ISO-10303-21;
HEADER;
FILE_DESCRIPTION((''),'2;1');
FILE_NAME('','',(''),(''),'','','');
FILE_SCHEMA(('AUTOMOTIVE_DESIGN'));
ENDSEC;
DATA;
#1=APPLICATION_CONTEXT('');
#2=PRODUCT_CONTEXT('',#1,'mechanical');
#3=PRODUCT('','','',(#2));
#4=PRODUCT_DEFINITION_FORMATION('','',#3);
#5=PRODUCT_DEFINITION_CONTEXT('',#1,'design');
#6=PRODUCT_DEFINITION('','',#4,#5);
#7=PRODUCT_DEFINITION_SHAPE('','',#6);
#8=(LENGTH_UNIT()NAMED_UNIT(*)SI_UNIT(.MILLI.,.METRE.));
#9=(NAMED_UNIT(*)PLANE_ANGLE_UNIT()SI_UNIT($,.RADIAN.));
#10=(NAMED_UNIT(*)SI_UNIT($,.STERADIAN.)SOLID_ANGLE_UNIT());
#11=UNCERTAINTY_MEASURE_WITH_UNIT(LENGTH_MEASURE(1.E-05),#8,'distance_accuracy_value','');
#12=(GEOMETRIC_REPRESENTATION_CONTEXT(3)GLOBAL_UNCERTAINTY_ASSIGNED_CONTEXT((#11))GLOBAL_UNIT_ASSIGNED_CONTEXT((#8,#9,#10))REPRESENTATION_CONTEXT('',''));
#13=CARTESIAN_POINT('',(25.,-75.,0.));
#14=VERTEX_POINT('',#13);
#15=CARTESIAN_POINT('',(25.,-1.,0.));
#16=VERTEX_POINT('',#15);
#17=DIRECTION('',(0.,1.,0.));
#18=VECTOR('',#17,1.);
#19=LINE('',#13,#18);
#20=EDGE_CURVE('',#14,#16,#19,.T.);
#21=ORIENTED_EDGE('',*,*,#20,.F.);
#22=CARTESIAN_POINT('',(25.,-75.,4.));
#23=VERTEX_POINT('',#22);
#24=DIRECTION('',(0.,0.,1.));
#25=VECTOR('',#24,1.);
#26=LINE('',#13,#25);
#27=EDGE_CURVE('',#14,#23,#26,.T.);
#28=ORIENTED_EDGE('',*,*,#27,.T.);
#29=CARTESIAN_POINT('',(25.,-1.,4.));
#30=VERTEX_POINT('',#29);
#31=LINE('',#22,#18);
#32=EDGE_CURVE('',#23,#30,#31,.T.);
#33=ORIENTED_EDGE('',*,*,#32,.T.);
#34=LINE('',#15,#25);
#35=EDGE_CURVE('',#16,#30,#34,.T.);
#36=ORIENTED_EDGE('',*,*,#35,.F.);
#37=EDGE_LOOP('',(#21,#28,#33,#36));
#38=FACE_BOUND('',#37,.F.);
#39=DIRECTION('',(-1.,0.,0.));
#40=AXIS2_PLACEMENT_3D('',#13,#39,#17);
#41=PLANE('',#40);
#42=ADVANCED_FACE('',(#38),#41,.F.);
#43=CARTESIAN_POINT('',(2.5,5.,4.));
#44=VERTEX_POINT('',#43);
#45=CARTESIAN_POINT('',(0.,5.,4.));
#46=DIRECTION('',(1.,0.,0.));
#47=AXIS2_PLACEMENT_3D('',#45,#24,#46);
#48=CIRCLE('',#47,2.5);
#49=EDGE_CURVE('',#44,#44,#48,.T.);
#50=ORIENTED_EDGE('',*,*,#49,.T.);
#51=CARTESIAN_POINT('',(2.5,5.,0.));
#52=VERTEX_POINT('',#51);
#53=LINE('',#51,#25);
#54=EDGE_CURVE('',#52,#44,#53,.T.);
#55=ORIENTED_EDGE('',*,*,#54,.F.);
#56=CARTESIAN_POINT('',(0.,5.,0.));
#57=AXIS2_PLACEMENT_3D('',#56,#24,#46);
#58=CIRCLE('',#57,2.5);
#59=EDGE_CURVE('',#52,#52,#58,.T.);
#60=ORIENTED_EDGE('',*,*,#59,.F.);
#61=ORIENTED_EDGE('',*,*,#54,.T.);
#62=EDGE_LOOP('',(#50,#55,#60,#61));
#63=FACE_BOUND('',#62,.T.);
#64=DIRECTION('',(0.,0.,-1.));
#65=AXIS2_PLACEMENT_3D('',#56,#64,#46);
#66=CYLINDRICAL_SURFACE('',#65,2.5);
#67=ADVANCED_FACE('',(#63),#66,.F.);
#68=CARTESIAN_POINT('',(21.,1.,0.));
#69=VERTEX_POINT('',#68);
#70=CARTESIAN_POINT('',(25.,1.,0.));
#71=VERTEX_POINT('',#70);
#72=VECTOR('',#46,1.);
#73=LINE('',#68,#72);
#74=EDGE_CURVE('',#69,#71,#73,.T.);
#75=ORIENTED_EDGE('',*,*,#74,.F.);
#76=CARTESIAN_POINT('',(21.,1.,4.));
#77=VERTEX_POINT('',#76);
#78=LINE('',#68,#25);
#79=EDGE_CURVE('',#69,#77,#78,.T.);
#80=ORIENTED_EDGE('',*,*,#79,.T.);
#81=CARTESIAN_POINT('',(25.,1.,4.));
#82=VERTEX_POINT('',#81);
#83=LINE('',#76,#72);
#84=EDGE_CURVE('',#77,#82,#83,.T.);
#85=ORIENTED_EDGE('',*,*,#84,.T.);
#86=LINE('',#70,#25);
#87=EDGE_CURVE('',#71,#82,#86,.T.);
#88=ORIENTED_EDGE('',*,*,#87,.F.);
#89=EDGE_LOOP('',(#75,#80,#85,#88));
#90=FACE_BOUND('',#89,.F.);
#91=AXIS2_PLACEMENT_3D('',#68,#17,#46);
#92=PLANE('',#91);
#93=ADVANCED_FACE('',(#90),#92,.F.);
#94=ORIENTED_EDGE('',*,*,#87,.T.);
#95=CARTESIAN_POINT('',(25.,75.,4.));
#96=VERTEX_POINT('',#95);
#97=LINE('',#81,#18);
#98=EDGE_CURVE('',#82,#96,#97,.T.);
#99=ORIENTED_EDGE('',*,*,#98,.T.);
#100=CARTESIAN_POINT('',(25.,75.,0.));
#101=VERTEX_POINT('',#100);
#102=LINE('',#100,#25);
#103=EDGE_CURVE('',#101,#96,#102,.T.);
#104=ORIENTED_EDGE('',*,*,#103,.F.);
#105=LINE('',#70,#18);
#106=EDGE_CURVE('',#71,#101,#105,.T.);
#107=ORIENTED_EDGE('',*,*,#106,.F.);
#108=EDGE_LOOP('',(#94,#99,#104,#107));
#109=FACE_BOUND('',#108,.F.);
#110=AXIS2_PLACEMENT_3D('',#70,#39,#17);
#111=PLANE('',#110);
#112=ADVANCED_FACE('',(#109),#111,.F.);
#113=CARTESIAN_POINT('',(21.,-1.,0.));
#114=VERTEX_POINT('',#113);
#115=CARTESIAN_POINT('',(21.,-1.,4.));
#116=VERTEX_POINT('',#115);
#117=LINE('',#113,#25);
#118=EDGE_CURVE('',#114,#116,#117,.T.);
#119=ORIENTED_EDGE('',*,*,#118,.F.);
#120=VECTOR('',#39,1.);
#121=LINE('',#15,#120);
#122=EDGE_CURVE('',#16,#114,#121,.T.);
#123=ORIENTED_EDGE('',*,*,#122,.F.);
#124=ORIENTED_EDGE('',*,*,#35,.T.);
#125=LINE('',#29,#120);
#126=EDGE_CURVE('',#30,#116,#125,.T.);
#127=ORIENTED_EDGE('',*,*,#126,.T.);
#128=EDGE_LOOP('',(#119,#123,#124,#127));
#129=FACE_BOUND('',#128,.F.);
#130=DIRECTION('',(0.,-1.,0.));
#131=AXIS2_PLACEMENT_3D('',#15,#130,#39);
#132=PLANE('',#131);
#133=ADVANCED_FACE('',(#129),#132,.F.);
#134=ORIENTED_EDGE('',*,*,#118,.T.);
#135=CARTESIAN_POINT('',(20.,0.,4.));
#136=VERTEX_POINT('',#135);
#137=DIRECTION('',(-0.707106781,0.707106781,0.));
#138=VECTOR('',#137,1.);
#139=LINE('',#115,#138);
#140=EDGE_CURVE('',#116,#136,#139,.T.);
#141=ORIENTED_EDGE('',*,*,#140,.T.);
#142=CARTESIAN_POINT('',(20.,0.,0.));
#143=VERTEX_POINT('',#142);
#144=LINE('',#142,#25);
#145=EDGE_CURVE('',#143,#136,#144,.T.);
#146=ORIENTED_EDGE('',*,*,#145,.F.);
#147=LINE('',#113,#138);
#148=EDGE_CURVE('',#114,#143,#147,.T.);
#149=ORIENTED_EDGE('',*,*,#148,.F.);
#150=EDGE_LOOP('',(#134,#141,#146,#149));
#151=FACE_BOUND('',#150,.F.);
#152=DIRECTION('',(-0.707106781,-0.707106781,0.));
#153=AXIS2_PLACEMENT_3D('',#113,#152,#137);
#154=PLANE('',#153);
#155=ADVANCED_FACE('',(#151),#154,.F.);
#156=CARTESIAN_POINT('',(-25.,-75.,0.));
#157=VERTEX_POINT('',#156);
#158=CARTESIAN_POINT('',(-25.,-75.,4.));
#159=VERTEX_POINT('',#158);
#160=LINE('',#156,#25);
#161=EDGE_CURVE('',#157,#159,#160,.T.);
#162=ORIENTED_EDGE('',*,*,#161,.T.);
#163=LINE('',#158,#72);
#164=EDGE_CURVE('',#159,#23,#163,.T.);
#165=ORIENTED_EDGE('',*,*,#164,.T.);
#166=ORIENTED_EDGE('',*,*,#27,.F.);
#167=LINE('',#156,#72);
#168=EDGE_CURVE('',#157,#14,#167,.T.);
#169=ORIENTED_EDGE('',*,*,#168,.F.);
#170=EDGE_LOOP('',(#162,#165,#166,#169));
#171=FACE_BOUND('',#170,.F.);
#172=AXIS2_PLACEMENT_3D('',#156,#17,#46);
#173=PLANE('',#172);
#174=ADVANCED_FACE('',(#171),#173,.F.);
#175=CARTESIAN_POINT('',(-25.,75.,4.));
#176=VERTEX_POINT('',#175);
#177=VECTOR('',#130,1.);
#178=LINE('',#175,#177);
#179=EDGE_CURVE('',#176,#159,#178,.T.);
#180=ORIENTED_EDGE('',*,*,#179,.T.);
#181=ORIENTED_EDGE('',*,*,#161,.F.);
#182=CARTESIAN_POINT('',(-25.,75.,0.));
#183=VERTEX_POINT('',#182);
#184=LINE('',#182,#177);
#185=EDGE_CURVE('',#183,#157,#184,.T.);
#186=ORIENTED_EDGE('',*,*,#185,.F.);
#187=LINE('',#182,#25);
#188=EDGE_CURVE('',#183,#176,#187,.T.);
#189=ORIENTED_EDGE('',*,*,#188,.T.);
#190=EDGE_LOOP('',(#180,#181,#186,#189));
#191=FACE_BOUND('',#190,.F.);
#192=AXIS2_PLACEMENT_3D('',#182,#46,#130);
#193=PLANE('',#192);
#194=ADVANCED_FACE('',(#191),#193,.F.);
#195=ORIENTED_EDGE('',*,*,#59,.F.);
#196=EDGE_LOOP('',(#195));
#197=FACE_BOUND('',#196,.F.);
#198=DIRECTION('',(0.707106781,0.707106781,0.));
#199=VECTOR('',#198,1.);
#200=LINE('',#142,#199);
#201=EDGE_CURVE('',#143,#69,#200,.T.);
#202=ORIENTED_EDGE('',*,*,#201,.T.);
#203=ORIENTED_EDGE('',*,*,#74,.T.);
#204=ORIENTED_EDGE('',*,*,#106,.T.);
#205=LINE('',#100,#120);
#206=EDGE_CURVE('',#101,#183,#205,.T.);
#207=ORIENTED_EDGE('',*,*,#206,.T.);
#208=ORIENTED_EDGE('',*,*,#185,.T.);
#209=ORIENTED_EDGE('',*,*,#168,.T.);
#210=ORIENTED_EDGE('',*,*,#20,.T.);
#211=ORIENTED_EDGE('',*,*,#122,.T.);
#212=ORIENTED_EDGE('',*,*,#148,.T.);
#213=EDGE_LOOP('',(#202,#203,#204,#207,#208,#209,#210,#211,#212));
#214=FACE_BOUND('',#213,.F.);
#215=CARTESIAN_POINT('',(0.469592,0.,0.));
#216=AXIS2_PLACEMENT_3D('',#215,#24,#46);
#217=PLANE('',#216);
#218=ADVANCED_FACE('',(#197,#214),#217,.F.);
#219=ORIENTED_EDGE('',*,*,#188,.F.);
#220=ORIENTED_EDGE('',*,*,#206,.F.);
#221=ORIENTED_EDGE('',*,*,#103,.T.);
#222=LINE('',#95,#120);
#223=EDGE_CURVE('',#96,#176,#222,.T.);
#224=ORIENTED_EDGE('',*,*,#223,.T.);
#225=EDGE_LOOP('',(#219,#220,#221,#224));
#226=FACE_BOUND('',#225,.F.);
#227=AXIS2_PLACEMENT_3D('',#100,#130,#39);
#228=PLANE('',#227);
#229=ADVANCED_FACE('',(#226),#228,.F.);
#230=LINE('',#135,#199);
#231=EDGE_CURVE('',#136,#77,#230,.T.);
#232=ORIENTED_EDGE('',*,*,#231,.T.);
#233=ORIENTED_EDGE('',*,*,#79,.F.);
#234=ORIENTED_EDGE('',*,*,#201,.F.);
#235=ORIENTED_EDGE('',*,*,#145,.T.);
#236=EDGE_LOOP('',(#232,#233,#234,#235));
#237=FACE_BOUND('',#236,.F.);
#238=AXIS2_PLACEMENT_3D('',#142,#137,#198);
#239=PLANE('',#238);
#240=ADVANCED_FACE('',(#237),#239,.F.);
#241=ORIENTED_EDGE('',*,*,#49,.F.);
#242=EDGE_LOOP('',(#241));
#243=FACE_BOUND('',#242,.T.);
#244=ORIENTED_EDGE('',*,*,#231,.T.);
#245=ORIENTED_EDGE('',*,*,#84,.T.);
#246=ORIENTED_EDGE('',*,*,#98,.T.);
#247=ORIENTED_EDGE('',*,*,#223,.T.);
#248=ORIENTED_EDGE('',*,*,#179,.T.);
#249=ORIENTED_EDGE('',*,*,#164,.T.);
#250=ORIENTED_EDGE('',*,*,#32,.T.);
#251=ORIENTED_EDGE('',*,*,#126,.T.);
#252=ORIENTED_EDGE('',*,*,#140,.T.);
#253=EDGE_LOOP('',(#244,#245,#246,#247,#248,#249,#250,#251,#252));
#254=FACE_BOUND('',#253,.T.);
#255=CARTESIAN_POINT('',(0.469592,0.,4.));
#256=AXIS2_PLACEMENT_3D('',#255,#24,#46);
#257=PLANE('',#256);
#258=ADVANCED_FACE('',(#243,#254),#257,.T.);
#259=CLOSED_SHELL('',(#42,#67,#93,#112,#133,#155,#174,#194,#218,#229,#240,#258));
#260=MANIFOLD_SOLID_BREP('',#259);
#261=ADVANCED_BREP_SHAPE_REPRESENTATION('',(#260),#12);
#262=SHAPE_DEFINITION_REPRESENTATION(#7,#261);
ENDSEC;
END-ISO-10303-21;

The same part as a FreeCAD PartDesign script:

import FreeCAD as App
import Part
import Sketcher
Q = App.Units.Quantity


def add_polygon(sketch, points):
    """Adds a closed chain of lines whose ends are joined by coincident constraints."""
    first, n = sketch.GeometryCount, len(points)
    for a, b in zip(points, points[1:] + points[:1]):
        sketch.addGeometry(Part.LineSegment(App.Vector(*a, 0), App.Vector(*b, 0)), False)
    for i in range(n):
        sketch.addConstraint(Sketcher.Constraint("Coincident", first + i, 2, first + (i + 1) % n, 1))

doc = App.newDocument("Part")
body = doc.addObject("PartDesign::Body", "Body")

# Sketch on XY plane
sketch1 = body.newObject("Sketcher::SketchObject", "Sketch")
sketch1.AttachmentSupport = (doc.getObject("XY_Plane"), [""])
sketch1.MapMode = "FlatFace"
add_polygon(sketch1, [(-25, -75), (25, -75), (25, -1), (21, -1), (20, 0), (21, 1), (25, 1), (25, 75), (-25, 75)])  # lines 0-8
sketch1.addGeometry(Part.Circle(App.Vector(0, 5, 0), App.Vector(0, 0, 1), 2.5), False)  # 9
sketch1.addConstraint([
    Sketcher.Constraint("Horizontal", 0),
    Sketcher.Constraint("Vertical", 1),
    Sketcher.Constraint("Horizontal", 2),
    Sketcher.Constraint("Horizontal", 5),
    Sketcher.Constraint("Vertical", 6),
    Sketcher.Constraint("Horizontal", 7),
    Sketcher.Constraint("Vertical", 8),
    Sketcher.Constraint("Symmetric", 0, 2, 7, 2, -1, 1),
    Sketcher.Constraint("Symmetric", 2, 2, 4, 2, -1),
    Sketcher.Constraint("PointOnObject", 9, 3, -2),
    Sketcher.Constraint("PointOnObject", 3, 2, -1),
    Sketcher.Constraint("Perpendicular", 3, 4),
    Sketcher.Constraint("Vertical", 1, 2, 5, 2),
    Sketcher.Constraint("Diameter", 9, Q("5 mm")),
    Sketcher.Constraint("DistanceX", 0, 1, 0, 2, Q("50 mm")),
    Sketcher.Constraint("DistanceX", 2, 2, 2, 1, Q("4 mm")),
    Sketcher.Constraint("DistanceY", 1, 1, 1, 2, Q("74 mm")),
    Sketcher.Constraint("DistanceY", 8, 2, 8, 1, Q("150 mm")),
    Sketcher.Constraint("DistanceY", -1, 1, 9, 3, Q("5 mm")),
])
pad1 = body.newObject("PartDesign::Pad", "Pad")
pad1.Profile = sketch1
pad1.Length = 4

doc.recompute()
